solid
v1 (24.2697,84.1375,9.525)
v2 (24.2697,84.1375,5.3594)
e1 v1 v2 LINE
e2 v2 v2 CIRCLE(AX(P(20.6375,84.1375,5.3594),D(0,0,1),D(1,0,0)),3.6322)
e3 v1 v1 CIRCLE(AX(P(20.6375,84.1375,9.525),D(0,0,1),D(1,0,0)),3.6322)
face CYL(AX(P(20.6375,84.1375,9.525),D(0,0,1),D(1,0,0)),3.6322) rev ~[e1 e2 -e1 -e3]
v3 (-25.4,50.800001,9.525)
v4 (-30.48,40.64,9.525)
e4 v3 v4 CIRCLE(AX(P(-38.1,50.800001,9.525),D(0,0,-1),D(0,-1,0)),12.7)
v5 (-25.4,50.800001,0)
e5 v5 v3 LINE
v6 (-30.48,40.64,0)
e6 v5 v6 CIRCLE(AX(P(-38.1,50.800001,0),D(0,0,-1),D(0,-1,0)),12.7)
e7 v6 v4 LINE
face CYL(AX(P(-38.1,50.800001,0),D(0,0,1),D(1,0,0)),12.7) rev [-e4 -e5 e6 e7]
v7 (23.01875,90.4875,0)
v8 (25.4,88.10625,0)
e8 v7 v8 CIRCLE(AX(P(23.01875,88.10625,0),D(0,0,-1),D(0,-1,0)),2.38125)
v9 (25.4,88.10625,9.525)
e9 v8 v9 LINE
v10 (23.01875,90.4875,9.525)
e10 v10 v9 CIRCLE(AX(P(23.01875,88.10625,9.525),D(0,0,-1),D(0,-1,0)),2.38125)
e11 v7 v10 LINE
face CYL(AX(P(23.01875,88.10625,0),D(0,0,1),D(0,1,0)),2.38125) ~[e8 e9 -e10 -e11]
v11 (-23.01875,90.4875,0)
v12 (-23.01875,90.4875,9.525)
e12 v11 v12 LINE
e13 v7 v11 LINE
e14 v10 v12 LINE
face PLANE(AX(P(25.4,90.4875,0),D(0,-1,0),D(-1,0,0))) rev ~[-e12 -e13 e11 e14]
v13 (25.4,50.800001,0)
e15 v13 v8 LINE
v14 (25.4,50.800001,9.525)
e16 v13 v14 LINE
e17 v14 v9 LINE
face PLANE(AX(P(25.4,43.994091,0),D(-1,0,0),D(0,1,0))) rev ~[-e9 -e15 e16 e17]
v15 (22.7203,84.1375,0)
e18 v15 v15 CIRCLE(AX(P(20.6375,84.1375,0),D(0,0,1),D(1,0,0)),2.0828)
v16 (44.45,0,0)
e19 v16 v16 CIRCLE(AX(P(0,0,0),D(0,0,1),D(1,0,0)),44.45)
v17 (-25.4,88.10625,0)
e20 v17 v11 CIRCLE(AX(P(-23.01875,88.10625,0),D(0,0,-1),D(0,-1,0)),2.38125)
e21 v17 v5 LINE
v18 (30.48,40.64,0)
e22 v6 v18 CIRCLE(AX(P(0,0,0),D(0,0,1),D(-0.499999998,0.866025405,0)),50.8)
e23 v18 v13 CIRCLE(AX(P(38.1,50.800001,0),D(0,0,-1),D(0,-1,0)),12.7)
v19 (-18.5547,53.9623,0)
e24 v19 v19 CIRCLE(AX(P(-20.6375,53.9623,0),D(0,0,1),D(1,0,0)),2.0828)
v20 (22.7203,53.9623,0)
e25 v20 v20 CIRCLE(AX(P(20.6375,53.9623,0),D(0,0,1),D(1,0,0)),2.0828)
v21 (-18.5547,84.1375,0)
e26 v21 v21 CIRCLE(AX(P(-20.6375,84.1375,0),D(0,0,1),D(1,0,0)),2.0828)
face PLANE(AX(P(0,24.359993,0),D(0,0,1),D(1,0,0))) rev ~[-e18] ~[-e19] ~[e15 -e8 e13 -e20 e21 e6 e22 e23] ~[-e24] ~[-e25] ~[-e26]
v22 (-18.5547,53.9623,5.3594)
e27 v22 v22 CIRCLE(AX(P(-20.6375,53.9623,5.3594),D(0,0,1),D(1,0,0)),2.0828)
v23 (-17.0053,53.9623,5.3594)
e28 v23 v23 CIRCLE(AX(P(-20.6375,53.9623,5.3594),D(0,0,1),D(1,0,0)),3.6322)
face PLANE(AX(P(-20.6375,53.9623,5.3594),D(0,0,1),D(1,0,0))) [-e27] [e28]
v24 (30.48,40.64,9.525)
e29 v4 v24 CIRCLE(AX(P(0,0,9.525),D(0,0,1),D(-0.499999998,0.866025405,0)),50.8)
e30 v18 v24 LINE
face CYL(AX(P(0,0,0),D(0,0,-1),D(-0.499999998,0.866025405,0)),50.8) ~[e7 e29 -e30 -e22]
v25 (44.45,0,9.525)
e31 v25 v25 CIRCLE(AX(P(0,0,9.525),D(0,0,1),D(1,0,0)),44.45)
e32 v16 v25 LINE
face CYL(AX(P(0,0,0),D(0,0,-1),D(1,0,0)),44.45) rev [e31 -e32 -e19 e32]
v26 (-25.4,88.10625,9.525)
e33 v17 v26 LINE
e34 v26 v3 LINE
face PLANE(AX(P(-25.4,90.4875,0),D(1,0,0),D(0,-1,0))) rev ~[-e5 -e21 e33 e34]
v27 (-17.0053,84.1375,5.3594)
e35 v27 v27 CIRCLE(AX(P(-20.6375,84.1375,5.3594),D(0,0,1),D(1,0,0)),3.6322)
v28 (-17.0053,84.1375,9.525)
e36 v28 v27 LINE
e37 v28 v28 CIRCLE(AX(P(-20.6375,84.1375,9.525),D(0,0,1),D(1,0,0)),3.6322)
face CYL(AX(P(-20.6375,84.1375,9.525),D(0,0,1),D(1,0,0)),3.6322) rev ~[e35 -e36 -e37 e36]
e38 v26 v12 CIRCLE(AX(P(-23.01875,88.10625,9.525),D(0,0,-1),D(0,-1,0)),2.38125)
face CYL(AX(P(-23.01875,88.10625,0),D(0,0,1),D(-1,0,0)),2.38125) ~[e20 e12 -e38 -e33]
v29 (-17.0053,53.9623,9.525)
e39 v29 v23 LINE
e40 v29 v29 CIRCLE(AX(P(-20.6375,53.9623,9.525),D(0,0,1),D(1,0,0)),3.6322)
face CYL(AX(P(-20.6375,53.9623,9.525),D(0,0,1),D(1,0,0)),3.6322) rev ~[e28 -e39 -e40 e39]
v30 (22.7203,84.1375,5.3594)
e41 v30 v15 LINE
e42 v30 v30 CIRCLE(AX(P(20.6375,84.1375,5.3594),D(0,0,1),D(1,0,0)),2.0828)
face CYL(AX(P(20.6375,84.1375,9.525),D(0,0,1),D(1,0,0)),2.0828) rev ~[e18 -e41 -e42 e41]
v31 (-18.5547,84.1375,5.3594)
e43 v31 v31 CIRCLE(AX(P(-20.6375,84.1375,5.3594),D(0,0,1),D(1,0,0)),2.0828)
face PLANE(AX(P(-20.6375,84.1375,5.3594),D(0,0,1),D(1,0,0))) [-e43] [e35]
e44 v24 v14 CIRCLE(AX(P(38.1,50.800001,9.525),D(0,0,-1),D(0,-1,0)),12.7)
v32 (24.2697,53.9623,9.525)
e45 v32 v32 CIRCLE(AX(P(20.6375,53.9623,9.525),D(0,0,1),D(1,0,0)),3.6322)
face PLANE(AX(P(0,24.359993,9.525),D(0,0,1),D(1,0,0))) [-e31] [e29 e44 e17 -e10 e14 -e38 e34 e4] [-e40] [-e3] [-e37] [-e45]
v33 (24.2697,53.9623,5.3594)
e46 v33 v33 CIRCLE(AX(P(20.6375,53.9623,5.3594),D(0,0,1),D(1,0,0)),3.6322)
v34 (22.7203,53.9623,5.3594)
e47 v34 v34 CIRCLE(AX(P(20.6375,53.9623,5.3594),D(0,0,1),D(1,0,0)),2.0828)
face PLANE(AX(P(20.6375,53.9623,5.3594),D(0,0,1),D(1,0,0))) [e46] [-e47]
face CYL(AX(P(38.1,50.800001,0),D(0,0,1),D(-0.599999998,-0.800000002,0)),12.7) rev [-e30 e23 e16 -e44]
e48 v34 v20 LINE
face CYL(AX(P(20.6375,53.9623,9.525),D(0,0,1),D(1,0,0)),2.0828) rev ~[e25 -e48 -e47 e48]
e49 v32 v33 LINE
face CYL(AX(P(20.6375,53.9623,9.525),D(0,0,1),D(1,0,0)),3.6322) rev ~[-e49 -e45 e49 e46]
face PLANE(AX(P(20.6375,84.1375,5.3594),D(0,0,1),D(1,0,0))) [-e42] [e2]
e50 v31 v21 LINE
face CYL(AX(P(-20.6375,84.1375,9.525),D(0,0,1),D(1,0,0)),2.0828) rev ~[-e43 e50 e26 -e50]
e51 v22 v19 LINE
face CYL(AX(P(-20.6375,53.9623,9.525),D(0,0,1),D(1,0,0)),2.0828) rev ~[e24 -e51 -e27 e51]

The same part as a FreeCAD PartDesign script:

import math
import FreeCAD as App
import Part
import Sketcher
from FreeCAD import Vector
Q = App.Units.Quantity


def edges_at(feature, points):
    """Names of the edges that pass closest to the given points."""
    edges = feature.Shape.Edges
    near = lambda p: min(range(len(edges)), key=lambda i: edges[i].distToShape(Part.Vertex(*p))[0])
    return sorted({f"Edge{near(p) + 1}" for p in points})

doc = App.newDocument("Part")
params = doc.addObject("Spreadsheet::Sheet", "Params")
for row, (alias, value) in enumerate([
    ("sketch1_radius", "2 in"),
    ("sketch1_diameter", "3.5 in"),
    ("sketch1_width", "2 in"),
    ("pad1_length", "0.375 in"),
    ("sketch2_diameter", "0.164 in"),
    ("pocket1_length", "1 in"),
    ("sketch3_diameter", "0.286 in"),
    ("pocket2_length", "0.164 in"),
    ("fillet_radius", "0.09375 in"),
    ("fillet2_radius", "0.5 in"),
], start=1):
    params.set(f"A{row}", alias)
    params.set(f"B{row}", "=" + value)
    params.setAlias(f"B{row}", alias)

body = doc.addObject("PartDesign::Body", "Body")

# Sketch on XY plane
sketch1 = doc.addObject("Sketcher::SketchObject", "Sketch")
body.addObject(sketch1)
sketch1.AttachmentSupport = (doc.XY_Plane, [""])
sketch1.MapMode = "FlatFace"
sketch1.addGeometry([
    Part.LineSegment(Vector(-25, 90, 0), Vector(-25, 44, 0)),  # 0
    Part.ArcOfCircle(Part.Circle(Vector(0, 0, 0), Vector(0, 0, 1), 51), math.radians(120), math.radians(420)),  # 1
    Part.LineSegment(Vector(25, 44, 0), Vector(25, 90, 0)),  # 2
    Part.LineSegment(Vector(25, 90, 0), Vector(-25, 90, 0)),  # 3
    Part.Circle(Vector(0, 0, 0), Vector(0, 0, 1), 44),  # 4
], False)
sketch1.addConstraint([
    Sketcher.Constraint("Coincident", 0, 2, 1, 1),
    Sketcher.Constraint("Coincident", 1, 2, 2, 1),
    Sketcher.Constraint("Coincident", 2, 2, 3, 1),
    Sketcher.Constraint("Coincident", 3, 2, 0, 1),
    Sketcher.Constraint("Vertical", 0),
    Sketcher.Constraint("Vertical", 2),
    Sketcher.Constraint("Horizontal", 3),
    Sketcher.Constraint("Coincident", 1, 3, -1, 1),
    Sketcher.Constraint("Coincident", 4, 3, -1, 1),
    Sketcher.Constraint("Horizontal", 0, 2, 1, 2),
    Sketcher.Constraint("Radius", 1, Q("2 in")),
    Sketcher.Constraint("Diameter", 4, Q("3.5 in")),
    Sketcher.Constraint("DistanceX", 3, 2, 3, 1, Q("2 in")),
    Sketcher.Constraint("DistanceY", -1, 1, 2, 2, Q("3.5625 in")),
])
sketch1.setExpression("Constraints[10]", "Params.sketch1_radius")
sketch1.setExpression("Constraints[11]", "Params.sketch1_diameter")
sketch1.setExpression("Constraints[12]", "Params.sketch1_width")
pad1 = doc.addObject("PartDesign::Pad", "Pad")
body.addObject(pad1)
pad1.Profile = sketch1
pad1.setExpression("Length", "Params.pad1_length")

# Sketch on XY plane
sketch2 = doc.addObject("Sketcher::SketchObject", "Sketch001")
body.addObject(sketch2)
sketch2.AttachmentSupport = (doc.XY_Plane, [""])
sketch2.MapMode = "FlatFace"
sketch2.AttachmentOffset = App.Placement(Vector(0, 0, 0.375 * 25.4), App.Rotation())
sketch2.addGeometry([
    Part.Circle(Vector(-20.6, 84.1, 0), Vector(0, 0, 1), 2.1),
    Part.Circle(Vector(20.6, 84.1, 0), Vector(0, 0, 1), 2.1),
    Part.Circle(Vector(20.6, 54, 0), Vector(0, 0, 1), 2.1),
    Part.Circle(Vector(-20.6, 54, 0), Vector(0, 0, 1), 2.1),
], False)
sketch2.addConstraint([
    Sketcher.Constraint("Equal", 0, 1),
    Sketcher.Constraint("Equal", 1, 2),
    Sketcher.Constraint("Equal", 2, 3),
    Sketcher.Constraint("Symmetric", 0, 3, 1, 3, -2),
    Sketcher.Constraint("Symmetric", 2, 3, 3, 3, -2),
    Sketcher.Constraint("Vertical", 1, 3, 2, 3),
    Sketcher.Constraint("Diameter", 0, Q("0.164 in")),
    Sketcher.Constraint("DistanceX", 0, 3, -1, 1, Q("0.8125 in")),
    Sketcher.Constraint("DistanceY", -1, 1, 0, 3, Q("3.3125 in")),
    Sketcher.Constraint("DistanceY", 2, 3, 1, 3, Q("1.188 in")),
])
sketch2.setExpression("Constraints[6]", "Params.sketch2_diameter")
pocket1 = doc.addObject("PartDesign::Pocket", "Pocket")
body.addObject(pocket1)
pocket1.Profile = sketch2
pocket1.setExpression("Length", "Params.pocket1_length")

# Sketch on XY plane
sketch3 = doc.addObject("Sketcher::SketchObject", "Sketch002")
body.addObject(sketch3)
sketch3.AttachmentSupport = (doc.XY_Plane, [""])
sketch3.MapMode = "FlatFace"
sketch3.AttachmentOffset = App.Placement(Vector(0, 0, 0.375 * 25.4), App.Rotation())
sketch3.addGeometry([
    Part.Circle(Vector(-20.6, 84.1, 0), Vector(0, 0, 1), 3.6),
    Part.Circle(Vector(20.6, 84.1, 0), Vector(0, 0, 1), 3.6),
    Part.Circle(Vector(20.6, 54, 0), Vector(0, 0, 1), 3.6),
    Part.Circle(Vector(-20.6, 54, 0), Vector(0, 0, 1), 3.6),
], False)
sketch3.addConstraint([
    Sketcher.Constraint("Equal", 0, 1),
    Sketcher.Constraint("Equal", 1, 2),
    Sketcher.Constraint("Equal", 2, 3),
    Sketcher.Constraint("Symmetric", 0, 3, 1, 3, -2),
    Sketcher.Constraint("Symmetric", 2, 3, 3, 3, -2),
    Sketcher.Constraint("Vertical", 1, 3, 2, 3),
    Sketcher.Constraint("Diameter", 0, Q("0.286 in")),
    Sketcher.Constraint("DistanceX", 0, 3, -1, 1, Q("0.8125 in")),
    Sketcher.Constraint("DistanceY", -1, 1, 0, 3, Q("3.3125 in")),
    Sketcher.Constraint("DistanceY", 2, 3, 1, 3, Q("1.188 in")),
])
sketch3.setExpression("Constraints[6]", "Params.sketch3_diameter")
pocket2 = doc.addObject("PartDesign::Pocket", "Pocket001")
body.addObject(pocket2)
pocket2.Profile = sketch3
pocket2.setExpression("Length", "Params.pocket2_length")
doc.recompute()

fillet = doc.addObject("PartDesign::Fillet", "Fillet")
body.addObject(fillet)
fillet.Base = (pocket2, edges_at(pocket2, [(-25.4, 90.487, 4.763), (25.4, 90.487, 4.763)]))
fillet.setExpression("Radius", "Params.fillet_radius")
doc.recompute()

fillet2 = doc.addObject("PartDesign::Fillet", "Fillet001")
body.addObject(fillet2)
fillet2.Base = (fillet, edges_at(fillet, [(-25.4, 43.994, 4.763), (25.4, 43.994, 4.763)]))
fillet2.setExpression("Radius", "Params.fillet2_radius")

doc.recompute()
